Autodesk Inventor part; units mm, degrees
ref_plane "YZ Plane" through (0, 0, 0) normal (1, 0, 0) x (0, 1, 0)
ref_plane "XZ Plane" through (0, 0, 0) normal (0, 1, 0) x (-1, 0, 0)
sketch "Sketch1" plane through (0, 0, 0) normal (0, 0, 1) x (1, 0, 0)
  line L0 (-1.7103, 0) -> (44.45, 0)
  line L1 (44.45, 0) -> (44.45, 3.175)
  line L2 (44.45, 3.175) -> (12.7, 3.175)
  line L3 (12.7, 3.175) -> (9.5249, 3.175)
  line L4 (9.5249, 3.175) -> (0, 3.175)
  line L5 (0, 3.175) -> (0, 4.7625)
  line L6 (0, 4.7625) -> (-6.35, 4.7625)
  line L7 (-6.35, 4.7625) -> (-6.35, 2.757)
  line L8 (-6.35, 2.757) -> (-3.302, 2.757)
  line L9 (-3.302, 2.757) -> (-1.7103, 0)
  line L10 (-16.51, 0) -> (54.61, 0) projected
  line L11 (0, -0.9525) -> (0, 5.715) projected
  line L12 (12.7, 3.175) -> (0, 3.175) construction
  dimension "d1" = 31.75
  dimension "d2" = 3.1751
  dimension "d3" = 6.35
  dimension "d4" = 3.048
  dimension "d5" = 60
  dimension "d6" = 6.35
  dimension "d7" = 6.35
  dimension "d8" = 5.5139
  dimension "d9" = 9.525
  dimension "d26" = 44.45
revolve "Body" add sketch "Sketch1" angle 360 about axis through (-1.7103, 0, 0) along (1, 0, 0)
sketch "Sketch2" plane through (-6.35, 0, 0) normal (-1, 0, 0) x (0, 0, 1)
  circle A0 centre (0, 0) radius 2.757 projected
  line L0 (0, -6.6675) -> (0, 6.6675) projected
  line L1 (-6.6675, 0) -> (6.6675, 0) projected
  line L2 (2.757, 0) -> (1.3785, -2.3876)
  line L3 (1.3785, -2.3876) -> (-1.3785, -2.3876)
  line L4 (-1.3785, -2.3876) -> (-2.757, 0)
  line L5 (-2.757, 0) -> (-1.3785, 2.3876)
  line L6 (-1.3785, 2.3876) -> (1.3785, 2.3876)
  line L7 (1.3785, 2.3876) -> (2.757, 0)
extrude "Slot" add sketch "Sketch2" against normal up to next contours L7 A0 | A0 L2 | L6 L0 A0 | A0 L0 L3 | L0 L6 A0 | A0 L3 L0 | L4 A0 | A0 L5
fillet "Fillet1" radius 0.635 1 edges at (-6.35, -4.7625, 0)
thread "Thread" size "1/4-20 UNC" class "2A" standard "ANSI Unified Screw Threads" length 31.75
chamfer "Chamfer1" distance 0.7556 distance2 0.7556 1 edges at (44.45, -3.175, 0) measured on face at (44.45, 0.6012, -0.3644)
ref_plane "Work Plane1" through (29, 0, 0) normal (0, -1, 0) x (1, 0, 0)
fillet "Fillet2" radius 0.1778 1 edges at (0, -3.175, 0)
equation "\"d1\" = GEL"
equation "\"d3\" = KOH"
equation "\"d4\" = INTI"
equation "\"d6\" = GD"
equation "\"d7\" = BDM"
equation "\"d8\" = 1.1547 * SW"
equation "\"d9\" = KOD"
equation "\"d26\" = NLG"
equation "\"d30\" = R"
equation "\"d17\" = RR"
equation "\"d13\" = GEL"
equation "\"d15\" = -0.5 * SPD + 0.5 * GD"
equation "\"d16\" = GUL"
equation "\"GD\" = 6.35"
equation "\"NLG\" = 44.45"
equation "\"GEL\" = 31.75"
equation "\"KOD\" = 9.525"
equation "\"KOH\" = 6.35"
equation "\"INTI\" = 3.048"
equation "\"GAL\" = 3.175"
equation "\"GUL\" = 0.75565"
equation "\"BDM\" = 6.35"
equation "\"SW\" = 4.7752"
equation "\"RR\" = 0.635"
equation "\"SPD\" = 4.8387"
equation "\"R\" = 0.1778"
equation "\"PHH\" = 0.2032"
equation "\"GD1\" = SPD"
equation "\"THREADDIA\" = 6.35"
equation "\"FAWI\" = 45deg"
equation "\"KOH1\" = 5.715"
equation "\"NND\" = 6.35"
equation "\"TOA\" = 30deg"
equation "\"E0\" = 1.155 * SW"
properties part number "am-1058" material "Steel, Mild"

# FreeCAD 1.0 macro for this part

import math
import FreeCAD as App
import Part
import Sketcher
from FreeCAD import Vector
Q = App.Units.Quantity


def edges_at(feature, points):
    """Names of the edges that pass closest to the given points."""
    edges = feature.Shape.Edges
    near = lambda p: min(range(len(edges)), key=lambda i: edges[i].distToShape(Part.Vertex(*p))[0])
    return sorted({f"Edge{near(p) + 1}" for p in points})


def add_polygon(sketch, points):
    """Adds a closed chain of lines whose ends are joined by coincident constraints."""
    first, n = sketch.GeometryCount, len(points)
    for a, b in zip(points, points[1:] + points[:1]):
        sketch.addGeometry(Part.LineSegment(App.Vector(*a, 0), App.Vector(*b, 0)), False)
    for i in range(n):
        sketch.addConstraint(Sketcher.Constraint("Coincident", first + i, 2, first + (i + 1) % n, 1))

doc = App.newDocument("Part")
body = doc.addObject("PartDesign::Body", "Body")

sketch1 = body.newObject("Sketcher::SketchObject", "Sketch")
sketch1.AttachmentSupport = (doc.getObject("XY_Plane"), [""])
sketch1.MapMode = "FlatFace"
add_polygon(sketch1, [(-3.3, 2.8), (-1.7, 0), (44.5, 0), (44.5, 3.2), (0, 3.2), (0, 4.8), (-6.3, 4.8), (-6.3, 2.8)])
sketch1.addConstraint(Sketcher.Constraint("Horizontal", 1))
sketch1.addConstraint(Sketcher.Constraint("Vertical", 2))
sketch1.addConstraint(Sketcher.Constraint("Horizontal", 3))
sketch1.addConstraint(Sketcher.Constraint("Vertical", 4))
sketch1.addConstraint(Sketcher.Constraint("Horizontal", 5))
sketch1.addConstraint(Sketcher.Constraint("Vertical", 6))
sketch1.addConstraint(Sketcher.Constraint("Horizontal", 7))
sketch1.addConstraint(Sketcher.Constraint("PointOnObject", 0, 2, -1))
sketch1.addConstraint(Sketcher.Constraint("PointOnObject", 3, 2, -2))
sketch1.addConstraint(Sketcher.Constraint("DistanceX", 3, 2, 3, 1, Q("1.75 in")))
sketch1.addConstraint(Sketcher.Constraint("DistanceX", 5, 2, 5, 1, Q("0.25 in")))
sketch1.addConstraint(Sketcher.Constraint("DistanceX", 7, 1, 7, 2, Q("0.12 in")))
sketch1.addConstraint(Sketcher.Constraint("DistanceY", 2, 1, 2, 2, Q("0.125 in")))
sketch1.addConstraint(Sketcher.Constraint("Angle", 0, Q("-60.0009 deg")))
sketch1.addConstraint(Sketcher.Constraint("DistanceY", 4, 1, 4, 2, Q("0.0625 in")))
sketch1.addConstraint(Sketcher.Constraint("DistanceX", 1, 1, 1, 2, Q("46.1603 mm")))
revolution = body.newObject("PartDesign::Revolution", "Revolution")
revolution.Profile = sketch1
revolution.ReferenceAxis = (sketch1, ["H_Axis"])
revolution.Angle = 360

sketch2 = body.newObject("Sketcher::SketchObject", "Sketch001")
sketch2.AttachmentSupport = (doc.getObject("YZ_Plane"), [""])
sketch2.MapMode = "FlatFace"
sketch2.AttachmentOffset = App.Placement(Vector(0, 0, -0.25 * 25.4), App.Rotation())
sketch2.addGeometry(Part.LineSegment(Vector(2.4, 1.4, 0), Vector(0, 2.8, 0)), False)
sketch2.addGeometry(Part.ArcOfCircle(Part.Circle(Vector(0, 0, 0), Vector(0, 0, 1), 2.8), math.radians(30), math.radians(90)), False)
sketch2.addGeometry(Part.ArcOfCircle(Part.Circle(Vector(0, 0, 0), Vector(0, 0, 1), 2.8), math.radians(90), math.radians(150)), False)
sketch2.addGeometry(Part.LineSegment(Vector(0, 2.8, 0), Vector(-2.4, 1.4, 0)), False)
sketch2.addGeometry(Part.ArcOfCircle(Part.Circle(Vector(0, 0, 0), Vector(0, 0, 1), 2.8), math.radians(-30), math.radians(30)), False)
sketch2.addGeometry(Part.LineSegment(Vector(2.4, 1.4, 0), Vector(2.4, -1.4, 0)), False)
sketch2.addGeometry(Part.LineSegment(Vector(-2.4, 1.4, 0), Vector(-2.4, -1.4, 0)), False)
sketch2.addGeometry(Part.ArcOfCircle(Part.Circle(Vector(0, 0, 0), Vector(0, 0, 1), 2.8), math.radians(150), math.radians(210)), False)
sketch2.addGeometry(Part.LineSegment(Vector(-2.4, -1.4, 0), Vector(0, -2.8, 0)), False)
sketch2.addGeometry(Part.ArcOfCircle(Part.Circle(Vector(0, 0, 0), Vector(0, 0, 1), 2.8), math.radians(-150), math.radians(-90)), False)
sketch2.addGeometry(Part.ArcOfCircle(Part.Circle(Vector(0, 0, 0), Vector(0, 0, 1), 2.8), math.radians(-90), math.radians(-30)), False)
sketch2.addGeometry(Part.LineSegment(Vector(0, -2.8, 0), Vector(2.4, -1.4, 0)), False)
sketch2.addConstraint(Sketcher.Constraint("Coincident", 0, 1, 1, 1))
sketch2.addConstraint(Sketcher.Constraint("Coincident", 1, 2, 0, 2))
sketch2.addConstraint(Sketcher.Constraint("Coincident", 2, 1, 3, 1))
sketch2.addConstraint(Sketcher.Constraint("Coincident", 3, 2, 2, 2))
sketch2.addConstraint(Sketcher.Constraint("Coincident", 4, 1, 5, 2))
sketch2.addConstraint(Sketcher.Constraint("Coincident", 5, 1, 4, 2))
sketch2.addConstraint(Sketcher.Constraint("Coincident", 6, 1, 7, 1))
sketch2.addConstraint(Sketcher.Constraint("Coincident", 7, 2, 6, 2))
sketch2.addConstraint(Sketcher.Constraint("Coincident", 8, 1, 9, 1))
sketch2.addConstraint(Sketcher.Constraint("Coincident", 9, 2, 8, 2))
sketch2.addConstraint(Sketcher.Constraint("Coincident", 10, 1, 11, 1))
sketch2.addConstraint(Sketcher.Constraint("Coincident", 11, 2, 10, 2))
sketch2.addConstraint(Sketcher.Constraint("Vertical", 5))
sketch2.addConstraint(Sketcher.Constraint("Vertical", 6))
sketch2.addConstraint(Sketcher.Constraint("Coincident", 1, 3, -1, 1))
sketch2.addConstraint(Sketcher.Constraint("Coincident", 2, 3, -1, 1))
sketch2.addConstraint(Sketcher.Constraint("Coincident", 4, 3, -1, 1))
sketch2.addConstraint(Sketcher.Constraint("Coincident", 7, 3, -1, 1))
sketch2.addConstraint(Sketcher.Constraint("Coincident", 9, 3, -1, 1))
sketch2.addConstraint(Sketcher.Constraint("Coincident", 10, 3, -1, 1))
sketch2.addConstraint(Sketcher.Constraint("Coincident", 2, 1, 1, 2))
sketch2.addConstraint(Sketcher.Constraint("Coincident", 5, 1, 0, 1))
sketch2.addConstraint(Sketcher.Constraint("Coincident", 6, 1, 3, 2))
sketch2.addConstraint(Sketcher.Constraint("Coincident", 8, 1, 7, 2))
sketch2.addConstraint(Sketcher.Constraint("Coincident", 10, 1, 9, 2))
sketch2.addConstraint(Sketcher.Constraint("PointOnObject", 1, 2, -2))
sketch2.addConstraint(Sketcher.Constraint("PointOnObject", 9, 2, -2))
sketch2.addConstraint(Sketcher.Constraint("Parallel", 0, 8))
sketch2.addConstraint(Sketcher.Constraint("Parallel", 3, 11))
sketch2.addConstraint(Sketcher.Constraint("Angle", 0, Q("149.9997 deg")))
sketch2.addConstraint(Sketcher.Constraint("Radius", 1, Q("2.757 mm")))
pad1 = body.newObject("PartDesign::Pad", "Pad")
pad1.Profile = sketch2
pad1.Type = "UpToFirst"
doc.recompute()

fillet = body.newObject("PartDesign::Fillet", "Fillet")
fillet.Base = (pad1, edges_at(pad1, [(-6.35, -4.763, 0)]))
fillet.Radius = Q("0.025 in")
doc.recompute()

chamfer = body.newObject("PartDesign::Chamfer", "Chamfer")
chamfer.Base = (fillet, edges_at(fillet, [(44.45, -3.175, 0)]))
chamfer.ChamferType = "Two distances"
chamfer.Size = 0.7556
chamfer.Size2 = 0.7556
doc.recompute()

fillet2 = body.newObject("PartDesign::Fillet", "Fillet001")
fillet2.Base = (chamfer, edges_at(chamfer, [(0, -3.175, 0)]))
fillet2.Radius = Q("0.007 in")

doc.recompute()
